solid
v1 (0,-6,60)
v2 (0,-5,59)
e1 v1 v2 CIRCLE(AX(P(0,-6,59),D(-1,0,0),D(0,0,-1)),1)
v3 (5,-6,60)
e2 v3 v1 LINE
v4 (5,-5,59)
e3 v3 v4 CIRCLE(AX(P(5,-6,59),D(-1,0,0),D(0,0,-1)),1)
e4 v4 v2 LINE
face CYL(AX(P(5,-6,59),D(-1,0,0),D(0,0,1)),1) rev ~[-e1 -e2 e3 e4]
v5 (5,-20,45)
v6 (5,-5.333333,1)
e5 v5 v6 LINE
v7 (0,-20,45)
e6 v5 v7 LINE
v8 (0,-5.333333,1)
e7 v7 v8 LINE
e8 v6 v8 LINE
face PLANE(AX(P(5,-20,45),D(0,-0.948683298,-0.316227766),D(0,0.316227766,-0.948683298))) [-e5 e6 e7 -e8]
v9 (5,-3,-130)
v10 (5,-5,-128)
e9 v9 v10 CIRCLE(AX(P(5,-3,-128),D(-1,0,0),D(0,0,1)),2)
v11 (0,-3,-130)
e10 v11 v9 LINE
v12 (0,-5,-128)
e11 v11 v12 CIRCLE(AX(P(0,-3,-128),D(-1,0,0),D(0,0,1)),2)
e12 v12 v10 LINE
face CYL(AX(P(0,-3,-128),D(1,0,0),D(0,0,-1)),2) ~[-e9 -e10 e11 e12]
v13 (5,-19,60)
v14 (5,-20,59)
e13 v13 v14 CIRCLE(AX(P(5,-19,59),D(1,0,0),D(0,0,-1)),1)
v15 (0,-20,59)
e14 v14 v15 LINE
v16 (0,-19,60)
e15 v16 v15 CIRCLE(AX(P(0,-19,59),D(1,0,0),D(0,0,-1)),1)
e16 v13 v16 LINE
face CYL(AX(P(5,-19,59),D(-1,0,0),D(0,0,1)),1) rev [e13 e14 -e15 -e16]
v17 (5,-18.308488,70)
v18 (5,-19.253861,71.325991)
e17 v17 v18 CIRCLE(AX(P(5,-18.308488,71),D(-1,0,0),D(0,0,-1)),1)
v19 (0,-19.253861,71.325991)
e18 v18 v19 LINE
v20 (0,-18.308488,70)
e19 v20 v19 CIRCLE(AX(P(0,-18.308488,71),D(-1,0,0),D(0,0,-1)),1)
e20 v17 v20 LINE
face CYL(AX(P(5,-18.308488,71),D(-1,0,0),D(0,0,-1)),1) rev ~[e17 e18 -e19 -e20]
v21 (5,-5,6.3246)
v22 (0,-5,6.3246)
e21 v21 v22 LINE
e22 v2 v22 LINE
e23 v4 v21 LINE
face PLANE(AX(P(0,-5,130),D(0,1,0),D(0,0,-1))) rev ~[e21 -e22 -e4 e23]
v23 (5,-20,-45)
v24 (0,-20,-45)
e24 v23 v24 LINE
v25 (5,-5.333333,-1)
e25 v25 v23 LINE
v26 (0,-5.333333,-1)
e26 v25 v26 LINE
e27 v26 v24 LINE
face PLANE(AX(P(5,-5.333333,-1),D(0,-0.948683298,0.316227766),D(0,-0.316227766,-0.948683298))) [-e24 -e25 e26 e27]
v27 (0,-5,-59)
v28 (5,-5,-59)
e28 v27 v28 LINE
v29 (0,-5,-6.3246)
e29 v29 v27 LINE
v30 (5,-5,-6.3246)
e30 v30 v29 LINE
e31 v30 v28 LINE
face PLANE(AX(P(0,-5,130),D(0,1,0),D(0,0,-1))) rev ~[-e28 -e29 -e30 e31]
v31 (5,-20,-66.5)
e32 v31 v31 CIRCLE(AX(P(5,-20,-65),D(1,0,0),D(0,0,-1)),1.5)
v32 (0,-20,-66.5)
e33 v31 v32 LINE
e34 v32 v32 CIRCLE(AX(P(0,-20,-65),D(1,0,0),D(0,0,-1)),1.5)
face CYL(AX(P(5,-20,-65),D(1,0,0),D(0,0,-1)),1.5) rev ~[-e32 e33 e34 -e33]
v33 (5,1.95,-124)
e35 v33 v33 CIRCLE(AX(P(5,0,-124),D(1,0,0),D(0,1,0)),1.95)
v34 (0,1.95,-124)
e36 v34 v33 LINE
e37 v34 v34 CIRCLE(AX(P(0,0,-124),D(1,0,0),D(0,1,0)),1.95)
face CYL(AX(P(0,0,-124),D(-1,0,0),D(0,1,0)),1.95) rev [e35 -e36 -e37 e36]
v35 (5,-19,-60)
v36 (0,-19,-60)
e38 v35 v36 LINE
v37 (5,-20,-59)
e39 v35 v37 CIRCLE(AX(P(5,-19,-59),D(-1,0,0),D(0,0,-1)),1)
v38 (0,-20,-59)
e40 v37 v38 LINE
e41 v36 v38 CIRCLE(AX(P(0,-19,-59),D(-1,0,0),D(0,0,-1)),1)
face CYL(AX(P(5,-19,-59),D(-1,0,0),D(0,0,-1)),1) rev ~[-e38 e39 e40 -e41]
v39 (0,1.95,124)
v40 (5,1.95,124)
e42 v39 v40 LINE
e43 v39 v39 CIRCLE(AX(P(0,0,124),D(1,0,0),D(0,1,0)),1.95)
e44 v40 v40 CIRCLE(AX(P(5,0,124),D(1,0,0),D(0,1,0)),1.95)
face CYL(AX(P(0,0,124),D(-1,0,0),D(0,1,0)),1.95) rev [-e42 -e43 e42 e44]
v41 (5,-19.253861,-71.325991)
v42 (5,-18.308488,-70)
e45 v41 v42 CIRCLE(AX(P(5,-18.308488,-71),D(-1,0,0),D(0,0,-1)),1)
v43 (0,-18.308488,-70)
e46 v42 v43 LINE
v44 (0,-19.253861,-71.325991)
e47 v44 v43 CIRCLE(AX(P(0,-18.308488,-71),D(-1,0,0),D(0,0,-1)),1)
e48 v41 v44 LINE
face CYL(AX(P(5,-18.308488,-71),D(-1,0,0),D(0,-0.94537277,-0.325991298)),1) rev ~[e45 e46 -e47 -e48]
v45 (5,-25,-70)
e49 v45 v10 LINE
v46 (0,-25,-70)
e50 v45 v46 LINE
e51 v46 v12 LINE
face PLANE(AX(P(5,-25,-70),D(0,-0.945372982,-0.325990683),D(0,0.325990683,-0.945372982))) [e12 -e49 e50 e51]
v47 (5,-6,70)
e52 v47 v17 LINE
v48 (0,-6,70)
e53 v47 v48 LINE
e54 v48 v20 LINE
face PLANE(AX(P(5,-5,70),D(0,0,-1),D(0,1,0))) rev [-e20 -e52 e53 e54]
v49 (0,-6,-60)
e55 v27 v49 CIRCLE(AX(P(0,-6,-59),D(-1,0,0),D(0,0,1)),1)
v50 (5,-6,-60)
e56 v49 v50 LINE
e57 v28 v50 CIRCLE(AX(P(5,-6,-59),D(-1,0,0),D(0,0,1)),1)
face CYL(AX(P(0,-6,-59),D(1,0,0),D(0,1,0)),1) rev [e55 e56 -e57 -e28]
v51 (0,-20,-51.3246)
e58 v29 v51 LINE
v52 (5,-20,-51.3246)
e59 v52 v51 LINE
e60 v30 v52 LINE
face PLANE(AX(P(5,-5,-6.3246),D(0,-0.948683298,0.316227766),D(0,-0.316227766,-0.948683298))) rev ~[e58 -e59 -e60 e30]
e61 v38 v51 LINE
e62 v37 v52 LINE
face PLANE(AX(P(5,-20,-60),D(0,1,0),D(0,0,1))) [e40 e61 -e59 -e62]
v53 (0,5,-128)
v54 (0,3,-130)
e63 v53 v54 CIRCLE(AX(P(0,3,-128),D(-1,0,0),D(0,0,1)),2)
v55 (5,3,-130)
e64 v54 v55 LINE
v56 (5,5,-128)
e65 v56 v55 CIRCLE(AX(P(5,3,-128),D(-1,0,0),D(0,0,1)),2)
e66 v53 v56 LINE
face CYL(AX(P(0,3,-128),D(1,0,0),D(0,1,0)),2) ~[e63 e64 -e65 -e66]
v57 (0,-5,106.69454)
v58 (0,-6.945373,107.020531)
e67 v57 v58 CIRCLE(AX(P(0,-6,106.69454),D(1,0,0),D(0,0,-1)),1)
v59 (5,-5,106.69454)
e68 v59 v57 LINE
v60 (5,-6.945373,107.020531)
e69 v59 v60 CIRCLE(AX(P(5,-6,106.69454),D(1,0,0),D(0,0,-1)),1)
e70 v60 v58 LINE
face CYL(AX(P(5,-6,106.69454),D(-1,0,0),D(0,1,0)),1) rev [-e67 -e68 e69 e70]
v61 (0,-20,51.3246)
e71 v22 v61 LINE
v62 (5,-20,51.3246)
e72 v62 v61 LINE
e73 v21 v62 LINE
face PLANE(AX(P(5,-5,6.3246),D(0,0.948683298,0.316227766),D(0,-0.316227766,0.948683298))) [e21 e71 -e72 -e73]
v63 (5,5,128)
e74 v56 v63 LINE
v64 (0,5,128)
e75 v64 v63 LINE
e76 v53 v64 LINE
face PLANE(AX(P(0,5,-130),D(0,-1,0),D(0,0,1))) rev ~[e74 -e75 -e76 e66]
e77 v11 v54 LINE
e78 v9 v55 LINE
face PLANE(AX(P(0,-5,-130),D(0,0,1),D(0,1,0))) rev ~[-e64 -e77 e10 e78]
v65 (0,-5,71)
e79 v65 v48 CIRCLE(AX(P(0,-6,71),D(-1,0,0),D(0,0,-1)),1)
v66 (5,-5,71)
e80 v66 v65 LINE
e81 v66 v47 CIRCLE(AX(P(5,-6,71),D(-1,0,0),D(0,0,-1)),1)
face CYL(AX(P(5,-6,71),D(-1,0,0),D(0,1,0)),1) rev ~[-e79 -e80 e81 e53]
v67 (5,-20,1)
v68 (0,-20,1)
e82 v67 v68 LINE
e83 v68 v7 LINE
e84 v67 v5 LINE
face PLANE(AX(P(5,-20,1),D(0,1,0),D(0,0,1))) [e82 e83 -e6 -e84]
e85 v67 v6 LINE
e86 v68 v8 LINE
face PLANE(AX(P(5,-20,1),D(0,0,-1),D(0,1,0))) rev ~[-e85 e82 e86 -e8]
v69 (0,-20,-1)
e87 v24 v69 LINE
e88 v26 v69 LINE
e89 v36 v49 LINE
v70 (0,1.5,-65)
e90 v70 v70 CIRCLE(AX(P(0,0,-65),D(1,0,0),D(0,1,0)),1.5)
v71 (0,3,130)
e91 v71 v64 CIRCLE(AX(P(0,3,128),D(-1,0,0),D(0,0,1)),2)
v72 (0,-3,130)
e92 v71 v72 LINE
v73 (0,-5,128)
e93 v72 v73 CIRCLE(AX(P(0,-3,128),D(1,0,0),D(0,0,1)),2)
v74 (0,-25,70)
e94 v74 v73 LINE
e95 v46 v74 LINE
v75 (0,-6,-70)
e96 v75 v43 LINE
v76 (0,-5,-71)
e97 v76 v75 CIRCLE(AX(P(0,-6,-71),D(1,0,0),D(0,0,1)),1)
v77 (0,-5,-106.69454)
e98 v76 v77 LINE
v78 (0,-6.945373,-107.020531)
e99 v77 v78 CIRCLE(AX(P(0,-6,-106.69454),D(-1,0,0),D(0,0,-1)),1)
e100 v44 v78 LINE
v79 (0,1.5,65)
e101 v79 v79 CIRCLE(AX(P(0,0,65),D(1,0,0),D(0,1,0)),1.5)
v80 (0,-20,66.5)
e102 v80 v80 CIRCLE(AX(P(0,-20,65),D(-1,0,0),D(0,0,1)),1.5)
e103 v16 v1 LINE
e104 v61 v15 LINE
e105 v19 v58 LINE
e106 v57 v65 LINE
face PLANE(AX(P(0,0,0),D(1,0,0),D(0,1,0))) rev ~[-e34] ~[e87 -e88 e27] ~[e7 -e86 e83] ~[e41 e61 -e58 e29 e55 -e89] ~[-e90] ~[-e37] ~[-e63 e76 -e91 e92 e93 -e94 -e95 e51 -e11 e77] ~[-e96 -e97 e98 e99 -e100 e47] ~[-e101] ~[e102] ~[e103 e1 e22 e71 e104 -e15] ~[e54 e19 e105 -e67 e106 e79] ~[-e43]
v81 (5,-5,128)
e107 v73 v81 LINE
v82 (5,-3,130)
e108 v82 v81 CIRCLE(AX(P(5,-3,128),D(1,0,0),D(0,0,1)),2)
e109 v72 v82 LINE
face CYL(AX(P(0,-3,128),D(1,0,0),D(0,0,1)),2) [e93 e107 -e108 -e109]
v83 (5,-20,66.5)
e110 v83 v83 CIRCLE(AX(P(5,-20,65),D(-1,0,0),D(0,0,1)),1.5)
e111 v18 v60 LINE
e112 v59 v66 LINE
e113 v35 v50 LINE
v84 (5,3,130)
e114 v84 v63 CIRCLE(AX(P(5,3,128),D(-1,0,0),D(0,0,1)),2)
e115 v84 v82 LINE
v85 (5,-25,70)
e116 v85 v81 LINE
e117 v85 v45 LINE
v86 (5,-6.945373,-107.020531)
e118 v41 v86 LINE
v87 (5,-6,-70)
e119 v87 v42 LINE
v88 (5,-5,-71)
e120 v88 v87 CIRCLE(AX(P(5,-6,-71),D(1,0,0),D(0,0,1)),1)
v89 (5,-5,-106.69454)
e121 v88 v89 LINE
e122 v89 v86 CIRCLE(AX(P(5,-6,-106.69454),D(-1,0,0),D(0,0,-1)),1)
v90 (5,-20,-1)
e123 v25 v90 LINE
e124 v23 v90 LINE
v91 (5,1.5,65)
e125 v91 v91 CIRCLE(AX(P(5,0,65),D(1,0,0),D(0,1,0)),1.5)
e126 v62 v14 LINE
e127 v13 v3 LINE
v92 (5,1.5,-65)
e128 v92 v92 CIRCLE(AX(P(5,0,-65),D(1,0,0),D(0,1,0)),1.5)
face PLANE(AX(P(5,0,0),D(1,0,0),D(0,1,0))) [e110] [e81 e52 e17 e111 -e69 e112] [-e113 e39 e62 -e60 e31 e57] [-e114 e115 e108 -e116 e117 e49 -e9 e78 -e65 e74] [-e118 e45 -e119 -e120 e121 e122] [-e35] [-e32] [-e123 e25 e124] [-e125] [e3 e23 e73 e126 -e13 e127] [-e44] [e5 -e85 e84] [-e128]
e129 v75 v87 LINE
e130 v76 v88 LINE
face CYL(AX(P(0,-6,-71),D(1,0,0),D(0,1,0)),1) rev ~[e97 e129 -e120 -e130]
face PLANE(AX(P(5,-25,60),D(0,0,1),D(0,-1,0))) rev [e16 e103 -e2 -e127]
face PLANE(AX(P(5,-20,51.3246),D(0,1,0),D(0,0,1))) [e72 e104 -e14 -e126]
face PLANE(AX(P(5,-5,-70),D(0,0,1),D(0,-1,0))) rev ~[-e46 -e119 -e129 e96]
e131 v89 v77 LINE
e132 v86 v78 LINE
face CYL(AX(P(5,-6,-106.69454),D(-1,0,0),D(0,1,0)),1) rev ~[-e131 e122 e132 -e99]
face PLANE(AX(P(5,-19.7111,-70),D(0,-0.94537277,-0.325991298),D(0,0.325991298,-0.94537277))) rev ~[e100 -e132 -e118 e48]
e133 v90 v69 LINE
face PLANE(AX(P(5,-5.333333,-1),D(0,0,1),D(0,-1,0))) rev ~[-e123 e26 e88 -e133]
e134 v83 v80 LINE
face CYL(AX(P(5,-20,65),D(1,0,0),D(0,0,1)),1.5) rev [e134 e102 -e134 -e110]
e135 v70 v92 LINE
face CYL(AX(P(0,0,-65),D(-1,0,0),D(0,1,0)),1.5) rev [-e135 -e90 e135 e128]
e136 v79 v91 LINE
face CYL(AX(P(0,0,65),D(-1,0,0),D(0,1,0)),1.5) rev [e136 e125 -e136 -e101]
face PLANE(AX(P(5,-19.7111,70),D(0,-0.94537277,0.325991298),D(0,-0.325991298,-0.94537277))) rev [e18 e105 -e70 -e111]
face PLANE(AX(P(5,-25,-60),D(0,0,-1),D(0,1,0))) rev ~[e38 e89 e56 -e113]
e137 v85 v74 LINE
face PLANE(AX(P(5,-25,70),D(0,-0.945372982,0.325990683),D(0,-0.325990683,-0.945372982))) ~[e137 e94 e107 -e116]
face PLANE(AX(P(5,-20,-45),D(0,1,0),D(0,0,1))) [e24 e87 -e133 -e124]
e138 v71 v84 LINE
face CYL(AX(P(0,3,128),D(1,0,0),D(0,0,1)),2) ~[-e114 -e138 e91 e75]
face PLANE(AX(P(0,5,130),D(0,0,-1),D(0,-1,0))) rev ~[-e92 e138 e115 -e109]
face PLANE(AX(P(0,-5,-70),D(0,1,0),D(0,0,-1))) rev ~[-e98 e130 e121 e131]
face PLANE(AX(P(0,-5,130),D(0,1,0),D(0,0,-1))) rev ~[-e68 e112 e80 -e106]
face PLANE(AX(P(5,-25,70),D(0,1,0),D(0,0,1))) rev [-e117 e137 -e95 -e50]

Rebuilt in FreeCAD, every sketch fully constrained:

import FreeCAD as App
import Part
import Sketcher
from FreeCAD import Vector


def edges_at(feature, points):
    """Names of the edges that pass closest to the given points."""
    edges = feature.Shape.Edges
    near = lambda p: min(range(len(edges)), key=lambda i: edges[i].distToShape(Part.Vertex(*p))[0])
    return sorted({f"Edge{near(p) + 1}" for p in points})

doc = App.newDocument("Part")
params = doc.addObject("Spreadsheet::Sheet", "Params")
for row, (alias, value) in enumerate([
    ("sketch1_diameter", "3 mm"),
    ("sketch1_diameter2", "3.9 mm"),
    ("sketch1_width", "10 mm"),
    ("sketch1_height", "260 mm"),
    ("pad1_length", "5 mm"),
    ("fillet_radius", "2 mm"),
    ("sketch2_diameter", "3 mm"),
    ("sketch2_width", "20 mm"),
    ("sketch2_height", "10 mm"),
    ("pad2_length", "5 mm"),
    ("sketch3_width", "5 mm"),
    ("sketch3_height", "120 mm"),
    ("sketch3_height2", "44 mm"),
    ("pad3_length", "5 mm"),
    ("fillet2_radius", "1 mm"),
], start=1):
    params.set(f"A{row}", alias)
    params.set(f"B{row}", "=" + value)
    params.setAlias(f"B{row}", alias)

body = doc.addObject("PartDesign::Body", "Body")

sketch1 = body.newObject("Sketcher::SketchObject", "Sketch")
sketch1.AttachmentSupport = (doc.getObject("YZ_Plane"), [""])
sketch1.MapMode = "FlatFace"
sketch1.addGeometry(Part.LineSegment(Vector(5, 130, 0), Vector(-5, 130, 0)), False)
sketch1.addGeometry(Part.LineSegment(Vector(-5, 130, 0), Vector(-5, -130, 0)), False)
sketch1.addGeometry(Part.LineSegment(Vector(-5, -130, 0), Vector(5, -130, 0)), False)
sketch1.addGeometry(Part.LineSegment(Vector(5, -130, 0), Vector(5, 130, 0)), False)
sketch1.addGeometry(Part.Circle(Vector(0, -124, 0), Vector(0, 0, 1), 1.9), False)
sketch1.addGeometry(Part.Circle(Vector(0, -65, 0), Vector(0, 0, 1), 1.5), False)
sketch1.addGeometry(Part.Circle(Vector(0, 65, 0), Vector(0, 0, 1), 1.5), False)
sketch1.addGeometry(Part.Circle(Vector(0, 124, 0), Vector(0, 0, 1), 1.9), False)
sketch1.addConstraint(Sketcher.Constraint("Coincident", 0, 2, 1, 1))
sketch1.addConstraint(Sketcher.Constraint("Coincident", 1, 2, 2, 1))
sketch1.addConstraint(Sketcher.Constraint("Coincident", 2, 2, 3, 1))
sketch1.addConstraint(Sketcher.Constraint("Coincident", 3, 2, 0, 1))
sketch1.addConstraint(Sketcher.Constraint("Horizontal", 0))
sketch1.addConstraint(Sketcher.Constraint("Vertical", 1))
sketch1.addConstraint(Sketcher.Constraint("Horizontal", 2))
sketch1.addConstraint(Sketcher.Constraint("Vertical", 3))
sketch1.addConstraint(Sketcher.Constraint("Equal", 5, 6))
sketch1.addConstraint(Sketcher.Constraint("Equal", 4, 7))
sketch1.addConstraint(Sketcher.Constraint("Symmetric", 5, 3, 6, 3, -1, 1))
sketch1.addConstraint(Sketcher.Constraint("Symmetric", 4, 3, 7, 3, -1, 1))
sketch1.addConstraint(Sketcher.Constraint("Symmetric", 0, 2, 2, 2, -1, 1))
sketch1.addConstraint(Sketcher.Constraint("PointOnObject", 4, 3, -2))
sketch1.addConstraint(Sketcher.Constraint("PointOnObject", 5, 3, -2))
sketch1.addConstraint(Sketcher.Constraint("Diameter", 5, 3.0))
sketch1.addConstraint(Sketcher.Constraint("Diameter", 4, 3.9))
sketch1.addConstraint(Sketcher.Constraint("DistanceX", 0, 2, 0, 1, 10.0))
sketch1.addConstraint(Sketcher.Constraint("DistanceY", 1, 2, 1, 1, 260.0))
sketch1.addConstraint(Sketcher.Constraint("DistanceY", 4, 3, 5, 3, 59.0))
sketch1.addConstraint(Sketcher.Constraint("DistanceY", 7, 3, 0, 2, 6.0))
sketch1.setExpression("Constraints[15]", "Params.sketch1_diameter")
sketch1.setExpression("Constraints[16]", "Params.sketch1_diameter2")
sketch1.setExpression("Constraints[17]", "Params.sketch1_width")
sketch1.setExpression("Constraints[18]", "Params.sketch1_height")
pad1 = body.newObject("PartDesign::Pad", "Pad")
pad1.Profile = sketch1
pad1.setExpression("Length", "Params.pad1_length")
doc.recompute()

fillet = body.newObject("PartDesign::Fillet", "Fillet")
fillet.Base = (pad1, edges_at(pad1, [
    (2.5, 5, 130),
    (2.5, -5, 130),
    (2.5, 5, -130),
    (2.5, -5, -130),
]))
fillet.setExpression("Radius", "Params.fillet_radius")

sketch2 = body.newObject("Sketcher::SketchObject", "Sketch001")
sketch2.AttachmentSupport = (doc.getObject("YZ_Plane"), [""])
sketch2.MapMode = "FlatFace"
sketch2.AttachmentOffset = App.Placement(Vector(0, 0, 5), App.Rotation())
sketch2.addGeometry(Part.LineSegment(Vector(-5, -70, 0), Vector(-5, -60, 0)), False)
sketch2.addGeometry(Part.LineSegment(Vector(-5, -60, 0), Vector(-25, -60, 0)), False)
sketch2.addGeometry(Part.LineSegment(Vector(-25, -60, 0), Vector(-25, -70, 0)), False)
sketch2.addGeometry(Part.LineSegment(Vector(-25, -70, 0), Vector(-5, -128, 0)), False)
sketch2.addGeometry(Part.LineSegment(Vector(-5, -128, 0), Vector(-5, -112.7, 0)), False)
sketch2.addGeometry(Part.LineSegment(Vector(-5, -112.7, 0), Vector(-19.7, -70, 0)), False)
sketch2.addGeometry(Part.LineSegment(Vector(-19.7, -70, 0), Vector(-5, -70, 0)), False)
sketch2.addGeometry(Part.Circle(Vector(-20, -65, 0), Vector(0, 0, 1), 1.5), False)
sketch2.addConstraint(Sketcher.Constraint("Coincident", 0, 2, 1, 1))
sketch2.addConstraint(Sketcher.Constraint("Coincident", 1, 2, 2, 1))
sketch2.addConstraint(Sketcher.Constraint("Coincident", 2, 2, 3, 1))
sketch2.addConstraint(Sketcher.Constraint("Coincident", 3, 2, 4, 1))
sketch2.addConstraint(Sketcher.Constraint("Coincident", 4, 2, 5, 1))
sketch2.addConstraint(Sketcher.Constraint("Coincident", 5, 2, 6, 1))
sketch2.addConstraint(Sketcher.Constraint("Coincident", 6, 2, 0, 1))
sketch2.addConstraint(Sketcher.Constraint("Vertical", 0))
sketch2.addConstraint(Sketcher.Constraint("Horizontal", 1))
sketch2.addConstraint(Sketcher.Constraint("Vertical", 2))
sketch2.addConstraint(Sketcher.Constraint("Vertical", 4))
sketch2.addConstraint(Sketcher.Constraint("Horizontal", 6))
sketch2.addConstraint(Sketcher.Constraint("Parallel", 3, 5))
sketch2.addConstraint(Sketcher.Constraint("Horizontal", 2, 2, 5, 2))
sketch2.addConstraint(Sketcher.Constraint("Vertical", 0, 2, 3, 2))
sketch2.addConstraint(Sketcher.Constraint("Diameter", 7, 3.0))
sketch2.addConstraint(Sketcher.Constraint("DistanceX", 1, 2, 1, 1, 20.0))
sketch2.addConstraint(Sketcher.Constraint("DistanceY", 0, 1, 0, 2, 10.0))
sketch2.addConstraint(Sketcher.Constraint("DistanceX", 7, 3, -1, 1, 20.0))
sketch2.addConstraint(Sketcher.Constraint("DistanceX", 0, 2, -1, 1, 5.0))
sketch2.addConstraint(Sketcher.Constraint("DistanceY", 7, 3, 0, 2, 5.0))
sketch2.addConstraint(Sketcher.Constraint("DistanceY", 7, 3, -1, 1, 65.0))
sketch2.addConstraint(Sketcher.Constraint("DistanceY", 3, 2, -1, 1, 128.0))
sketch2.addConstraint(Sketcher.Constraint("DistanceX", 6, 1, 6, 2, 14.711))
sketch2.setExpression("Constraints[15]", "Params.sketch2_diameter")
sketch2.setExpression("Constraints[16]", "Params.sketch2_width")
sketch2.setExpression("Constraints[17]", "Params.sketch2_height")
pad2 = body.newObject("PartDesign::Pad", "Pad001")
pad2.Profile = sketch2
pad2.setExpression("Length", "Params.pad2_length")
pad2.Reversed = True
doc.recompute()

mirrored = body.newObject("PartDesign::Mirrored", "Mirrored")
mirrored.Originals = [pad2]
mirrored.MirrorPlane = (doc.getObject("XY_Plane"), [""])
body.Tip = mirrored

sketch3 = body.newObject("Sketcher::SketchObject", "Sketch002")
sketch3.AttachmentSupport = (doc.getObject("YZ_Plane"), [""])
sketch3.MapMode = "FlatFace"
sketch3.AttachmentOffset = App.Placement(Vector(0, 0, 5), App.Rotation())
sketch3.addGeometry(Part.LineSegment(Vector(-25, 60, 0), Vector(-25, -60, 0)), False)
sketch3.addGeometry(Part.LineSegment(Vector(-25, -60, 0), Vector(-20, -60, 0)), False)
sketch3.addGeometry(Part.LineSegment(Vector(-20, -60, 0), Vector(-20, -51, 0)), False)
sketch3.addGeometry(Part.LineSegment(Vector(-20, -51, 0), Vector(-5, -6, 0)), False)
sketch3.addGeometry(Part.LineSegment(Vector(-5, -6, 0), Vector(-5, 6, 0)), False)
sketch3.addGeometry(Part.LineSegment(Vector(-5, 6, 0), Vector(-20, 51, 0)), False)
sketch3.addGeometry(Part.LineSegment(Vector(-20, 51, 0), Vector(-20, 60, 0)), False)
sketch3.addGeometry(Part.LineSegment(Vector(-20, 60, 0), Vector(-25, 60, 0)), False)
sketch3.addGeometry(Part.LineSegment(Vector(-20, 1, 0), Vector(-20, 45, 0)), False)
sketch3.addGeometry(Part.LineSegment(Vector(-20, 45, 0), Vector(-5, 1, 0)), False)
sketch3.addGeometry(Part.LineSegment(Vector(-5, 1, 0), Vector(-20, 1, 0)), False)
sketch3.addGeometry(Part.LineSegment(Vector(-20, -45, 0), Vector(-20, -1, 0)), False)
sketch3.addGeometry(Part.LineSegment(Vector(-20, -1, 0), Vector(-5, -1, 0)), False)
sketch3.addGeometry(Part.LineSegment(Vector(-5, -1, 0), Vector(-20, -45, 0)), False)
sketch3.addConstraint(Sketcher.Constraint("Coincident", 0, 2, 1, 1))
sketch3.addConstraint(Sketcher.Constraint("Coincident", 1, 2, 2, 1))
sketch3.addConstraint(Sketcher.Constraint("Coincident", 2, 2, 3, 1))
sketch3.addConstraint(Sketcher.Constraint("Coincident", 3, 2, 4, 1))
sketch3.addConstraint(Sketcher.Constraint("Coincident", 4, 2, 5, 1))
sketch3.addConstraint(Sketcher.Constraint("Coincident", 5, 2, 6, 1))
sketch3.addConstraint(Sketcher.Constraint("Coincident", 6, 2, 7, 1))
sketch3.addConstraint(Sketcher.Constraint("Coincident", 7, 2, 0, 1))
sketch3.addConstraint(Sketcher.Constraint("Coincident", 8, 2, 9, 1))
sketch3.addConstraint(Sketcher.Constraint("Coincident", 9, 2, 10, 1))
sketch3.addConstraint(Sketcher.Constraint("Coincident", 10, 2, 8, 1))
sketch3.addConstraint(Sketcher.Constraint("Coincident", 11, 2, 12, 1))
sketch3.addConstraint(Sketcher.Constraint("Coincident", 12, 2, 13, 1))
sketch3.addConstraint(Sketcher.Constraint("Coincident", 13, 2, 11, 1))
sketch3.addConstraint(Sketcher.Constraint("Vertical", 0))
sketch3.addConstraint(Sketcher.Constraint("Horizontal", 1))
sketch3.addConstraint(Sketcher.Constraint("Vertical", 2))
sketch3.addConstraint(Sketcher.Constraint("Vertical", 4))
sketch3.addConstraint(Sketcher.Constraint("Vertical", 6))
sketch3.addConstraint(Sketcher.Constraint("Horizontal", 7))
sketch3.addConstraint(Sketcher.Constraint("Vertical", 8))
sketch3.addConstraint(Sketcher.Constraint("Horizontal", 10))
sketch3.addConstraint(Sketcher.Constraint("Vertical", 11))
sketch3.addConstraint(Sketcher.Constraint("Horizontal", 12))
sketch3.addConstraint(Sketcher.Constraint("Symmetric", 2, 2, 5, 2, -1))
sketch3.addConstraint(Sketcher.Constraint("Symmetric", 10, 2, 11, 2, -1))
sketch3.addConstraint(Sketcher.Constraint("Parallel", 5, 9))
sketch3.addConstraint(Sketcher.Constraint("Parallel", 3, 13))
sketch3.addConstraint(Sketcher.Constraint("Vertical", 6, 2, 8, 2))
sketch3.addConstraint(Sketcher.Constraint("Vertical", 9, 2, 12, 2))
sketch3.addConstraint(Sketcher.Constraint("Equal", 2, 6))
sketch3.addConstraint(Sketcher.Constraint("Equal", 8, 11))
sketch3.addConstraint(Sketcher.Constraint("DistanceX", 1, 1, 1, 2, 5.0))
sketch3.addConstraint(Sketcher.Constraint("DistanceX", 3, 2, -1, 1, 5.0))
sketch3.addConstraint(Sketcher.Constraint("DistanceY", -1, 1, 9, 2, 1.0))
sketch3.addConstraint(Sketcher.Constraint("DistanceY", 0, 2, 0, 1, 120.0))
sketch3.addConstraint(Sketcher.Constraint("DistanceY", 8, 1, 8, 2, 44.0))
sketch3.addConstraint(Sketcher.Constraint("DistanceX", 0, 2, -1, 1, 25.0))
sketch3.addConstraint(Sketcher.Constraint("DistanceY", 2, 2, 3, 2, 45.0))
sketch3.addConstraint(Sketcher.Constraint("DistanceY", 2, 1, 2, 2, 8.6754))
sketch3.setExpression("Constraints[32]", "Params.sketch3_width")
sketch3.setExpression("Constraints[35]", "Params.sketch3_height")
sketch3.setExpression("Constraints[36]", "Params.sketch3_height2")
pad3 = body.newObject("PartDesign::Pad", "Pad002")
pad3.Profile = sketch3
pad3.setExpression("Length", "Params.pad3_length")
pad3.Reversed = True
doc.recompute()

fillet2 = body.newObject("PartDesign::Fillet", "Fillet001")
fillet2.Base = (pad3, edges_at(pad3, [
    (2.5, -19.711, -70),
    (2.5, -5, -112.662),
    (2.5, -5, -70),
    (2.5, -20, -60),
    (2.5, -5, -60),
    (2.5, -20, 60),
    (2.5, -5, 60),
    (2.5, -5, 112.662),
    (2.5, -5, 70),
    (2.5, -19.711, 70),
]))
fillet2.setExpression("Radius", "Params.fillet2_radius")

doc.recompute()
